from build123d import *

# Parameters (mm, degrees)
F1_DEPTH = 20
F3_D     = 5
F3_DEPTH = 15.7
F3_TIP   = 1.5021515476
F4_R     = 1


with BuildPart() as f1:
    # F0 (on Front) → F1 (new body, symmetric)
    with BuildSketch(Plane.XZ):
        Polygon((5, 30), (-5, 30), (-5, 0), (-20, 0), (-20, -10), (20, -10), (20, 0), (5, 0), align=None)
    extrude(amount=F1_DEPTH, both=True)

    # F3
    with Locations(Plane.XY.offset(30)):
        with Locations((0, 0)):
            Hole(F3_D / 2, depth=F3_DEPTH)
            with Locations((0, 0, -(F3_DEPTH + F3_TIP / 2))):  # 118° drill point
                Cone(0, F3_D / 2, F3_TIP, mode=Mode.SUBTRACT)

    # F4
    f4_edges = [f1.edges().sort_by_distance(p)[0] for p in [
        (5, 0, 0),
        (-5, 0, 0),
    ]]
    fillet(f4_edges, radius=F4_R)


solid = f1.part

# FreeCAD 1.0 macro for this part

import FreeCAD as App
import Part
import Sketcher


def edges_at(feature, points):
    """Names of the edges that pass closest to the given points."""
    edges = feature.Shape.Edges
    near = lambda p: min(range(len(edges)), key=lambda i: edges[i].distToShape(Part.Vertex(*p))[0])
    return sorted({f"Edge{near(p) + 1}" for p in points})


def add_polygon(sketch, points):
    """Adds a closed chain of lines whose ends are joined by coincident constraints."""
    first, n = sketch.GeometryCount, len(points)
    for a, b in zip(points, points[1:] + points[:1]):
        sketch.addGeometry(Part.LineSegment(App.Vector(*a, 0), App.Vector(*b, 0)), False)
    for i in range(n):
        sketch.addConstraint(Sketcher.Constraint("Coincident", first + i, 2, first + (i + 1) % n, 1))

doc = App.newDocument("Part")
body = doc.addObject("PartDesign::Body", "Body")

# Sketch on XZ plane
sketch1 = body.newObject("Sketcher::SketchObject", "Sketch")
sketch1.AttachmentSupport = (doc.getObject("XZ_Plane"), [""])
sketch1.MapMode = "FlatFace"
add_polygon(sketch1, [(5, 30), (-5, 30), (-5, 0), (-20, 0), (-20, -10), (20, -10), (20, 0), (5, 0)])  # lines 0-7
sketch1.addConstraint(Sketcher.Constraint("Horizontal", 0))
sketch1.addConstraint(Sketcher.Constraint("Vertical", 1))
sketch1.addConstraint(Sketcher.Constraint("Horizontal", 2))
sketch1.addConstraint(Sketcher.Constraint("Vertical", 3))
sketch1.addConstraint(Sketcher.Constraint("Horizontal", 4))
sketch1.addConstraint(Sketcher.Constraint("Vertical", 5))
sketch1.addConstraint(Sketcher.Constraint("Horizontal", 6))
sketch1.addConstraint(Sketcher.Constraint("Vertical", 7))
sketch1.addConstraint(Sketcher.Constraint("Symmetric", 2, 2, 5, 2, -1, 1))
sketch1.addConstraint(Sketcher.Constraint("Symmetric", 1, 2, 6, 2, -2))
sketch1.addConstraint(Sketcher.Constraint("Equal", 0, 3))
sketch1.addConstraint(Sketcher.Constraint("DistanceX", 0, 2, 0, 1, 10.0))
sketch1.addConstraint(Sketcher.Constraint("DistanceX", 2, 2, 2, 1, 15.0))
sketch1.addConstraint(Sketcher.Constraint("DistanceY", 1, 2, 1, 1, 30.0))
pad1 = body.newObject("PartDesign::Pad", "Pad")
pad1.Profile = sketch1
pad1.Length = 40
pad1.Midplane = True

# Sketch on XY plane
sketch2 = body.newObject("Sketcher::SketchObject", "Sketch001")
sketch2.AttachmentSupport = (doc.getObject("XY_Plane"), [""])
sketch2.MapMode = "FlatFace"
sketch2.AttachmentOffset = App.Placement(App.Vector(0, 0, 30), App.Rotation())
sketch2.addGeometry(Part.Circle(App.Vector(0, 0, 0), App.Vector(0, 0, 1), 2.5), False)
sketch2.addConstraint(Sketcher.Constraint("Coincident", 0, 3, -1, 1))
sketch2.addConstraint(Sketcher.Constraint("Diameter", 0, 5.0))
doc.recompute()
hole = body.newObject("PartDesign::Hole", "Hole")
hole.Profile = sketch2
hole.ThreadType = "None"
hole.Diameter = 5
hole.DepthType = "Dimension"
hole.Depth = 15.7
hole.DrillPoint = "Angled"
hole.DrillPointAngle = 118
doc.recompute()

fillet = body.newObject("PartDesign::Fillet", "Fillet")
fillet.Base = (hole, edges_at(hole, [(5, 0, 0), (-5, 0, 0)]))
fillet.Radius = 1

doc.recompute()
